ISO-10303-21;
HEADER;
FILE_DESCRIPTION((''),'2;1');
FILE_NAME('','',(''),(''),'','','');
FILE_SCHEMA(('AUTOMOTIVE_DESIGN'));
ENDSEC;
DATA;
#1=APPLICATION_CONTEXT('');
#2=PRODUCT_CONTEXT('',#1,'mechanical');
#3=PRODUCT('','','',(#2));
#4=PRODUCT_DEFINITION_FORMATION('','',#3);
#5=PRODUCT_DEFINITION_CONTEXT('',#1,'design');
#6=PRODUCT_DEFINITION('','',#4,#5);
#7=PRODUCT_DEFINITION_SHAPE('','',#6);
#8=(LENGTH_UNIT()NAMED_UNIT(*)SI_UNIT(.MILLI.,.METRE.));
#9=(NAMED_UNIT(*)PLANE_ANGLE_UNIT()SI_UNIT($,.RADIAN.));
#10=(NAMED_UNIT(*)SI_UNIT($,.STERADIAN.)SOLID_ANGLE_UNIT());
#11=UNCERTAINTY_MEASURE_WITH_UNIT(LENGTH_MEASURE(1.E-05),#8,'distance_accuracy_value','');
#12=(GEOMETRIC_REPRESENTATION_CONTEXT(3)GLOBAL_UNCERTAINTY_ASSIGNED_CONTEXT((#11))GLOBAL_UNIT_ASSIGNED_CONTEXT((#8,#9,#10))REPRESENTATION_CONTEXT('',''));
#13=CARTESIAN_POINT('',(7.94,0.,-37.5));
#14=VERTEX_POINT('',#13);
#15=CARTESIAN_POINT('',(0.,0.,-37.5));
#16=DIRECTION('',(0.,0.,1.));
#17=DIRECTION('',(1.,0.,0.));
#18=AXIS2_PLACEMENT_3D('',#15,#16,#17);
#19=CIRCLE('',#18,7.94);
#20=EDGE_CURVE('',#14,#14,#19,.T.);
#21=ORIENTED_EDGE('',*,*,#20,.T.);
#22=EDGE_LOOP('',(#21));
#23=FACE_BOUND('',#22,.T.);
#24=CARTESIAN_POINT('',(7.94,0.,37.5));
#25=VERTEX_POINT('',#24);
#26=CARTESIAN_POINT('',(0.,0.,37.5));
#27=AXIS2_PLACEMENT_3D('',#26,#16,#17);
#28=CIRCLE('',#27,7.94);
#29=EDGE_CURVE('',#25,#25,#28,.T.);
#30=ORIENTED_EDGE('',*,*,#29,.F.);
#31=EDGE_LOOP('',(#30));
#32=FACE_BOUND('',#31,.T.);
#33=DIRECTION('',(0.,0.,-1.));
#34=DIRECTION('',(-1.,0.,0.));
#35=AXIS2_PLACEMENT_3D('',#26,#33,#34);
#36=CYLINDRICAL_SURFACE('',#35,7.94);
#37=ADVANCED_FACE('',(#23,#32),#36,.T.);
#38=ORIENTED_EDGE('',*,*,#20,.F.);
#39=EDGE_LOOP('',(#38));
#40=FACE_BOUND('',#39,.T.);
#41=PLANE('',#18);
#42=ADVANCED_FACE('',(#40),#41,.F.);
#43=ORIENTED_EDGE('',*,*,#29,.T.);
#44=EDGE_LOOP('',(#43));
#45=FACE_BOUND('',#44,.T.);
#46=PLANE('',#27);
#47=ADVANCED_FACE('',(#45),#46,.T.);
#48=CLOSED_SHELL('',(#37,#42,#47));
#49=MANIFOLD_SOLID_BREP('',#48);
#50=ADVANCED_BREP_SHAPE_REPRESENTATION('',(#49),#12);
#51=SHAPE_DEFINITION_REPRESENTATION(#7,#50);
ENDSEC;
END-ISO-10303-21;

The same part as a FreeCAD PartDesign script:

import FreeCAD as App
import Part
import Sketcher

doc = App.newDocument("Part")
body = doc.addObject("PartDesign::Body", "Body")

# Sketch on XY plane
sketch1 = body.newObject("Sketcher::SketchObject", "Sketch")
sketch1.AttachmentSupport = (doc.getObject("XY_Plane"), [""])
sketch1.MapMode = "FlatFace"
sketch1.addGeometry(Part.Circle(App.Vector(0, 0, 0), App.Vector(0, 0, 1), 8), False)
sketch1.addConstraint(Sketcher.Constraint("Coincident", 0, 3, -1, 1))
sketch1.addConstraint(Sketcher.Constraint("Diameter", 0, 15.88))
pad1 = body.newObject("PartDesign::Pad", "Pad")
pad1.Profile = sketch1
pad1.Length = 75
pad1.Midplane = True

doc.recompute()
